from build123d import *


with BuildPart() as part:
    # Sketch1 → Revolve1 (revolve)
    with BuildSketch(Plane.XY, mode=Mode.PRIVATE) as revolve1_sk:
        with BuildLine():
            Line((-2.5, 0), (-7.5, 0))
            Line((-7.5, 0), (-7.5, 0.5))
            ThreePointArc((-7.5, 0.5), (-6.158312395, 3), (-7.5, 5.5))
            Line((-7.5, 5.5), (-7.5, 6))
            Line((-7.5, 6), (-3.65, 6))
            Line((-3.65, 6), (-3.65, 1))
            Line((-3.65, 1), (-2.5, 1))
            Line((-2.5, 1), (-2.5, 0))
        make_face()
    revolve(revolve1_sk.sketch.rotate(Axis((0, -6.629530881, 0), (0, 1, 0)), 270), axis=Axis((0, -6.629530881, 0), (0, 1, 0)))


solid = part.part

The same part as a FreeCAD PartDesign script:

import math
import FreeCAD as App
import Part
import Sketcher

V = App.Vector
Q = App.Units.Quantity

doc = App.newDocument("Part")
body = doc.addObject("PartDesign::Body", "Body")

# Sketch on XY plane
sketch1 = body.newObject("Sketcher::SketchObject", "Sketch")
sketch1.AttachmentSupport = (doc.getObject("XY_Plane"), [""])
sketch1.MapMode = "FlatFace"
sketch1.addGeometry(Part.LineSegment(V(-7.5, 0, 0), V(-2.5, 0, 0)), False)
sketch1.addGeometry(Part.LineSegment(V(-2.5, 0, 0), V(-2.5, 1, 0)), False)
sketch1.addGeometry(Part.LineSegment(V(-2.5, 1, 0), V(-3.6, 1, 0)), False)
sketch1.addGeometry(Part.LineSegment(V(-3.6, 1, 0), V(-3.6, 6, 0)), False)
sketch1.addGeometry(Part.LineSegment(V(-3.6, 6, 0), V(-7.5, 6, 0)), False)
sketch1.addGeometry(Part.LineSegment(V(-7.5, 6, 0), V(-7.5, 5.5, 0)), False)
sketch1.addGeometry(Part.ArcOfCircle(Part.Circle(V(-9.2, 3, 0), V(0, 0, 1), 3), math.radians(-56), math.radians(56)), False)
sketch1.addGeometry(Part.LineSegment(V(-7.5, 0.5, 0), V(-7.5, 0, 0)), False)
sketch1.addConstraint(Sketcher.Constraint("Coincident", 0, 2, 1, 1))
sketch1.addConstraint(Sketcher.Constraint("Coincident", 1, 2, 2, 1))
sketch1.addConstraint(Sketcher.Constraint("Coincident", 2, 2, 3, 1))
sketch1.addConstraint(Sketcher.Constraint("Coincident", 3, 2, 4, 1))
sketch1.addConstraint(Sketcher.Constraint("Coincident", 4, 2, 5, 1))
sketch1.addConstraint(Sketcher.Constraint("Coincident", 5, 2, 6, 2))
sketch1.addConstraint(Sketcher.Constraint("Coincident", 6, 1, 7, 1))
sketch1.addConstraint(Sketcher.Constraint("Coincident", 7, 2, 0, 1))
sketch1.addConstraint(Sketcher.Constraint("Horizontal", 0))
sketch1.addConstraint(Sketcher.Constraint("Vertical", 1))
sketch1.addConstraint(Sketcher.Constraint("Horizontal", 2))
sketch1.addConstraint(Sketcher.Constraint("Vertical", 3))
sketch1.addConstraint(Sketcher.Constraint("Horizontal", 4))
sketch1.addConstraint(Sketcher.Constraint("Vertical", 5))
sketch1.addConstraint(Sketcher.Constraint("Vertical", 7))
sketch1.addConstraint(Sketcher.Constraint("PointOnObject", 0, 2, -1))
sketch1.addConstraint(Sketcher.Constraint("Vertical", 5, 2, 6, 1))
sketch1.addConstraint(Sketcher.Constraint("Equal", 0, 3))
sketch1.addConstraint(Sketcher.Constraint("Equal", 5, 7))
sketch1.addConstraint(Sketcher.Constraint("Radius", 6, Q("3 mm")))
sketch1.addConstraint(Sketcher.Constraint("DistanceX", 0, 1, 0, 2, Q("5 mm")))
sketch1.addConstraint(Sketcher.Constraint("DistanceY", 1, 1, 1, 2, Q("1 mm")))
sketch1.addConstraint(Sketcher.Constraint("DistanceY", 5, 2, 5, 1, Q("0.5 mm")))
sketch1.addConstraint(Sketcher.Constraint("DistanceX", 2, 2, 2, 1, Q("1.15 mm")))
sketch1.addConstraint(Sketcher.Constraint("DistanceX", 0, 2, -1, 1, Q("2.5 mm")))
revolution = body.newObject("PartDesign::Revolution", "Revolution")
revolution.Profile = sketch1
revolution.ReferenceAxis = (sketch1, ["V_Axis"])
revolution.Angle = 360

doc.recompute()
